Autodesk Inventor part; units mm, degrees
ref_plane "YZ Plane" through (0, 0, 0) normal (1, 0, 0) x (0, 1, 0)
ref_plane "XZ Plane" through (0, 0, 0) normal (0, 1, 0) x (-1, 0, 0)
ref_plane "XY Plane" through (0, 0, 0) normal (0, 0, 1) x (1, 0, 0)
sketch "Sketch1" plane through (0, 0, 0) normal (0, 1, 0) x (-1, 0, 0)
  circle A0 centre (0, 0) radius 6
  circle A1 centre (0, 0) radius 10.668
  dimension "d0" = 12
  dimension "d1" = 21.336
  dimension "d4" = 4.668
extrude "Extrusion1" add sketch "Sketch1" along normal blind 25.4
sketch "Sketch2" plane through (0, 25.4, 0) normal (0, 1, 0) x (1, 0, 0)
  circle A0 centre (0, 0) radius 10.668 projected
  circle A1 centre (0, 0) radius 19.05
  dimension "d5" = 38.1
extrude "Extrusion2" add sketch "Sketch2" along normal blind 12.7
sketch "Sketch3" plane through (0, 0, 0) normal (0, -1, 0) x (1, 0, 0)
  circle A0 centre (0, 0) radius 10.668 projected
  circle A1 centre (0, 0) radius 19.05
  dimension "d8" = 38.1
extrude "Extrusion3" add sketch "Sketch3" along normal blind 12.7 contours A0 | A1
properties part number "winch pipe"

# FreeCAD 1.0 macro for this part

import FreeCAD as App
import Part
import Sketcher
Q = App.Units.Quantity

doc = App.newDocument("Part")
body = doc.addObject("PartDesign::Body", "Body")
body.AllowCompound = True

# Sketch on XZ plane
sketch1 = doc.addObject("Sketcher::SketchObject", "Sketch")
body.addObject(sketch1)
sketch1.AttachmentSupport = (doc.XZ_Plane, [""])
sketch1.MapMode = "FlatFace"
sketch1.addGeometry(Part.Circle(App.Vector(0, 0, 0), App.Vector(0, 0, 1), 10.668), False)
sketch1.addGeometry(Part.Circle(App.Vector(0, 0, 0), App.Vector(0, 0, 1), 6), False)
sketch1.addConstraint(Sketcher.Constraint("Coincident", 0, 3, -1, 1))
sketch1.addConstraint(Sketcher.Constraint("Coincident", 1, 3, -1, 1))
sketch1.addConstraint(Sketcher.Constraint("Diameter", 0, Q("0.84 in")))
sketch1.addConstraint(Sketcher.Constraint("Diameter", 1, 12.0))
pad1 = doc.addObject("PartDesign::Pad", "Pad")
body.addObject(pad1)
pad1.Profile = sketch1
pad1.Length = Q("1 in")
pad1.Reversed = True

# Sketch on XZ plane
sketch2 = doc.addObject("Sketcher::SketchObject", "Sketch001")
body.addObject(sketch2)
sketch2.AttachmentSupport = (doc.XZ_Plane, [""])
sketch2.MapMode = "FlatFace"
sketch2.AttachmentOffset = App.Placement(App.Vector(0, 0, -1 * 25.4), App.Rotation())
sketch2.addGeometry(Part.Circle(App.Vector(0, 0, 0), App.Vector(0, 0, 1), 19.05), False)
sketch2.addGeometry(Part.Circle(App.Vector(0, 0, 0), App.Vector(0, 0, 1), 10.668), False)
sketch2.addConstraint(Sketcher.Constraint("Coincident", 0, 3, -1, 1))
sketch2.addConstraint(Sketcher.Constraint("Coincident", 1, 3, -1, 1))
sketch2.addConstraint(Sketcher.Constraint("Diameter", 0, Q("1.5 in")))
sketch2.addConstraint(Sketcher.Constraint("Diameter", 1, Q("0.84 in")))
pad2 = doc.addObject("PartDesign::Pad", "Pad001")
body.addObject(pad2)
pad2.Profile = sketch2
pad2.Length = Q("0.5 in")
pad2.Reversed = True

# Sketch on XZ plane
sketch3 = doc.addObject("Sketcher::SketchObject", "Sketch002")
body.addObject(sketch3)
sketch3.AttachmentSupport = (doc.XZ_Plane, [""])
sketch3.MapMode = "FlatFace"
sketch3.addGeometry(Part.Circle(App.Vector(0, 0, 0), App.Vector(0, 0, 1), 19.05), False)
sketch3.addConstraint(Sketcher.Constraint("Coincident", 0, 3, -1, 1))
sketch3.addConstraint(Sketcher.Constraint("Diameter", 0, Q("1.5 in")))
pad3 = doc.addObject("PartDesign::Pad", "Pad002")
body.addObject(pad3)
pad3.Profile = sketch3
pad3.Length = Q("0.5 in")

doc.recompute()
